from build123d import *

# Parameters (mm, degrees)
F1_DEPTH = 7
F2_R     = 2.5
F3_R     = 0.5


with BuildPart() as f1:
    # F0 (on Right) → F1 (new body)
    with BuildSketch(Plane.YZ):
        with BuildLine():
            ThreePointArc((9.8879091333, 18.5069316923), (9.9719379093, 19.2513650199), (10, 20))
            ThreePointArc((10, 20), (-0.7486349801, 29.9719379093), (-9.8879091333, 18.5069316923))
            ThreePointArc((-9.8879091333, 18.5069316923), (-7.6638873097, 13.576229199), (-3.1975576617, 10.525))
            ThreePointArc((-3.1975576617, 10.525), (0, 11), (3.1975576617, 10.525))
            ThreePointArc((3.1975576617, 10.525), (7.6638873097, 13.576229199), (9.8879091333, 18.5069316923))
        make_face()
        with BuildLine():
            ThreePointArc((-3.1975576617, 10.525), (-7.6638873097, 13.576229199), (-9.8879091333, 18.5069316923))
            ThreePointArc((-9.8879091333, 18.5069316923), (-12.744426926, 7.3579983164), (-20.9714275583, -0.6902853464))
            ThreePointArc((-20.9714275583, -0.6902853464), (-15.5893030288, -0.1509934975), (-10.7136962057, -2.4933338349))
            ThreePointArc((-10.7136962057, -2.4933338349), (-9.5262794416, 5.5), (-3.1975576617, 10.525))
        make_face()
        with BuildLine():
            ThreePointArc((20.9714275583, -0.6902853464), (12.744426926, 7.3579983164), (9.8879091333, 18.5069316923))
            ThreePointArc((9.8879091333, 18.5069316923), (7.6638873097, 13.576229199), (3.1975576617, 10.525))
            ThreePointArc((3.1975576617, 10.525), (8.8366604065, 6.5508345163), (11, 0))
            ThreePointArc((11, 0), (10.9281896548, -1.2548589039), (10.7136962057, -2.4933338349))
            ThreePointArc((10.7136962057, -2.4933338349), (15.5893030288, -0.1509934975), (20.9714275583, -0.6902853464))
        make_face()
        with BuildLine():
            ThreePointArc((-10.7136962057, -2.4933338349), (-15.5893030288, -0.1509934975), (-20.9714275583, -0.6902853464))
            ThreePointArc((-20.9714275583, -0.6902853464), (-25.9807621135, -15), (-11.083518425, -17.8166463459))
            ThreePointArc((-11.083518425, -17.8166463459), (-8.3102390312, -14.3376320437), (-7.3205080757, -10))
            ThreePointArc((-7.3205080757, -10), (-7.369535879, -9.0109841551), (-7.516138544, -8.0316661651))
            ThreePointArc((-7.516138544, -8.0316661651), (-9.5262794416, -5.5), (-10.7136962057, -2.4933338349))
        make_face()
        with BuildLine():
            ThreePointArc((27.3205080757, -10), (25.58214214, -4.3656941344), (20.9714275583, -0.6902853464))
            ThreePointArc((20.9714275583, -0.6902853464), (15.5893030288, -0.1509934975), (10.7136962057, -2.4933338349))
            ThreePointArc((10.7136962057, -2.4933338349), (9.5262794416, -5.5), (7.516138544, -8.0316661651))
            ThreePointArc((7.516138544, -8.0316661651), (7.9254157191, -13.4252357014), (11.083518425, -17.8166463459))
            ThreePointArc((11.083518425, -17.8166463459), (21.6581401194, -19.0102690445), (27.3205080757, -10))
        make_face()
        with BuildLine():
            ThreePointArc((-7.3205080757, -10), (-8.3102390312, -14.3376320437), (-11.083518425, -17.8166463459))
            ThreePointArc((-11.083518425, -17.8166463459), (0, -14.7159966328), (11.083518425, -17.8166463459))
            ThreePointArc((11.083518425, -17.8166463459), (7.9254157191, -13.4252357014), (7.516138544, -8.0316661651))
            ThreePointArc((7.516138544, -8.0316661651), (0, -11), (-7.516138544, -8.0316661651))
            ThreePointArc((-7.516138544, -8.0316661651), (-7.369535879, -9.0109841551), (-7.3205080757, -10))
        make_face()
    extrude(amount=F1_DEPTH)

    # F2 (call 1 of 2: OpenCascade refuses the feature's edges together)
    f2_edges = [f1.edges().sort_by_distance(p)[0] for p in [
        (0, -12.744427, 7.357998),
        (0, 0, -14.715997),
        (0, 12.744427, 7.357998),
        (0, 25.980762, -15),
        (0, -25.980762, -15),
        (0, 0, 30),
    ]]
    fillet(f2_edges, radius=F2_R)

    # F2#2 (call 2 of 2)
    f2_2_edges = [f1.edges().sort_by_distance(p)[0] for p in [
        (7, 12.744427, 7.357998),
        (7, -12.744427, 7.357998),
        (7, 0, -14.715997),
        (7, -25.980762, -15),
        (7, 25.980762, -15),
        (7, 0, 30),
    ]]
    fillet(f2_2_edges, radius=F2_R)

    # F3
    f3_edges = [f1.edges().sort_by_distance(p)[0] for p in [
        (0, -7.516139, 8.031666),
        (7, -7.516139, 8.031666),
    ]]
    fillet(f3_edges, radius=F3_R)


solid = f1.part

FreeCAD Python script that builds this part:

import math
import FreeCAD as App
import Part
import Sketcher

V = App.Vector


def edges_at(feature, points):
    """Names of the edges that pass closest to the given points."""
    edges = feature.Shape.Edges
    near = lambda p: min(range(len(edges)), key=lambda i: edges[i].distToShape(Part.Vertex(*p))[0])
    return sorted({f"Edge{near(p) + 1}" for p in points})

doc = App.newDocument("Part")
params = doc.addObject("Spreadsheet::Sheet", "Params")
for row, (alias, value) in enumerate([
    ("sketch1_radius", "10 mm"),
    ("sketch1_radius2", "11 mm"),
    ("pad1_length", "7 mm"),
    ("fillet_radius", "2.5 mm"),
    ("fillet2_radius", "2.5 mm"),
    ("fillet3_radius", "0.5 mm"),
], start=1):
    params.set(f"A{row}", alias)
    params.set(f"B{row}", "=" + value)
    params.setAlias(f"B{row}", alias)

body = doc.addObject("PartDesign::Body", "Body")

# Sketch on YZ plane
sketch1 = body.newObject("Sketcher::SketchObject", "Sketch")
sketch1.AttachmentSupport = (doc.getObject("YZ_Plane"), [""])
sketch1.MapMode = "FlatFace"
sketch1.addGeometry(Part.ArcOfCircle(Part.Circle(V(0, 20, 0), V(0, 0, 1), 10), math.radians(-8.586759), math.radians(0)), False)
sketch1.addGeometry(Part.ArcOfCircle(Part.Circle(V(0, 20, 0), V(0, 0, 1), 10), math.radians(0), math.radians(188.586759)), False)
sketch1.addGeometry(Part.ArcOfCircle(Part.Circle(V(-31.242542, 18.03789, 0), V(0, 0, 1), 21.359783), math.radians(-61.258266), math.radians(1.258266)), False)
sketch1.addGeometry(Part.ArcOfCircle(Part.Circle(V(-17.320508, -10, 0), V(0, 0, 1), 10), math.radians(111.413241), math.radians(308.586759)), False)
sketch1.addGeometry(Part.ArcOfCircle(Part.Circle(V(0, -36.07578, 0), V(0, 0, 1), 21.359783), math.radians(58.741734), math.radians(121.258266)), False)
sketch1.addGeometry(Part.ArcOfCircle(Part.Circle(V(17.320508, -10, 0), V(0, 0, 1), 10), math.radians(-128.586759), math.radians(68.586759)), False)
sketch1.addGeometry(Part.ArcOfCircle(Part.Circle(V(31.242542, 18.03789, 0), V(0, 0, 1), 21.359783), math.radians(178.741734), math.radians(241.258266)), False)
sketch1.addGeometry(Part.ArcOfCircle(Part.Circle(V(0, 0, 0), V(0, 0, 1), 11), math.radians(-166.899094), math.radians(-133.100906)), False)
sketch1.addGeometry(Part.ArcOfCircle(Part.Circle(V(0, 0, 0), V(0, 0, 1), 11), math.radians(106.899094), math.radians(193.100906)), False)
sketch1.addGeometry(Part.ArcOfCircle(Part.Circle(V(0, 0, 0), V(0, 0, 1), 11), math.radians(0), math.radians(106.899094)), False)
sketch1.addGeometry(Part.ArcOfCircle(Part.Circle(V(0, 0, 0), V(0, 0, 1), 11), math.radians(-13.100906), math.radians(0)), False)
sketch1.addGeometry(Part.ArcOfCircle(Part.Circle(V(0, 0, 0), V(0, 0, 1), 11), math.radians(-46.899094), math.radians(-13.100906)), False)
sketch1.addGeometry(Part.ArcOfCircle(Part.Circle(V(0, 0, 0), V(0, 0, 1), 11), math.radians(-133.100906), math.radians(-46.899094)), False)
sketch1.addConstraint(Sketcher.Constraint("Tangent", 0, 2, 1, 1))
sketch1.addConstraint(Sketcher.Constraint("Coincident", 1, 2, 2, 2))
sketch1.addConstraint(Sketcher.Constraint("Coincident", 2, 1, 3, 1))
sketch1.addConstraint(Sketcher.Constraint("Coincident", 3, 2, 4, 2))
sketch1.addConstraint(Sketcher.Constraint("Coincident", 4, 1, 5, 1))
sketch1.addConstraint(Sketcher.Constraint("Coincident", 5, 2, 6, 2))
sketch1.addConstraint(Sketcher.Constraint("Coincident", 6, 1, 0, 1))
sketch1.addConstraint(Sketcher.Constraint("Tangent", 7, 1, 8, 2))
sketch1.addConstraint(Sketcher.Constraint("Tangent", 8, 1, 9, 2))
sketch1.addConstraint(Sketcher.Constraint("Tangent", 9, 1, 10, 2))
sketch1.addConstraint(Sketcher.Constraint("Tangent", 10, 1, 11, 2))
sketch1.addConstraint(Sketcher.Constraint("Tangent", 11, 1, 12, 2))
sketch1.addConstraint(Sketcher.Constraint("Tangent", 12, 1, 7, 2))
sketch1.addConstraint(Sketcher.Constraint("Coincident", 7, 3, -1, 1))
sketch1.addConstraint(Sketcher.Constraint("Coincident", 9, 3, -1, 1))
sketch1.addConstraint(Sketcher.Constraint("Equal", 0, 1))
sketch1.addConstraint(Sketcher.Constraint("Equal", 1, 3))
sketch1.addConstraint(Sketcher.Constraint("Equal", 2, 4))
sketch1.addConstraint(Sketcher.Constraint("Equal", 3, 5))
sketch1.addConstraint(Sketcher.Constraint("Equal", 4, 6))
sketch1.addConstraint(Sketcher.Constraint("Equal", 9, 10))
sketch1.addConstraint(Sketcher.Constraint("Symmetric", 3, 3, 5, 3, -2))
sketch1.addConstraint(Sketcher.Constraint("Symmetric", 2, 3, 6, 3, -2))
sketch1.addConstraint(Sketcher.Constraint("PointOnObject", 0, 3, -2))
sketch1.addConstraint(Sketcher.Constraint("PointOnObject", 4, 3, -2))
sketch1.addConstraint(Sketcher.Constraint("PointOnObject", 9, 1, -1))
sketch1.addConstraint(Sketcher.Constraint("Horizontal", 1, 3, 0, 2))
sketch1.addConstraint(Sketcher.Constraint("Horizontal", 7, 1, 10, 1))
sketch1.addConstraint(Sketcher.Constraint("Horizontal", 11, 1, 12, 1))
sketch1.addConstraint(Sketcher.Constraint("Radius", 0, 10.0))
sketch1.addConstraint(Sketcher.Constraint("Radius", 7, 11.0))
sketch1.addConstraint(Sketcher.Constraint("DistanceY", -1, 1, 0, 3, 20.0))
sketch1.addConstraint(Sketcher.Constraint("DistanceY", 3, 3, -1, 1, 10.0))
sketch1.addConstraint(Sketcher.Constraint("DistanceY", -1, 1, 8, 1, 10.525))
sketch1.addConstraint(Sketcher.Constraint("Radius", 2, 21.359783))
sketch1.addConstraint(Sketcher.Constraint("DistanceX", 2, 3, -1, 1, 31.242542))
sketch1.addConstraint(Sketcher.Constraint("DistanceY", -1, 1, 2, 3, 18.03789))
sketch1.addConstraint(Sketcher.Constraint("DistanceX", 3, 3, -1, 1, 17.320508))
sketch1.addConstraint(Sketcher.Constraint("DistanceY", 4, 3, -1, 1, 36.07578))
sketch1.addConstraint(Sketcher.Constraint("DistanceX", -1, 1, 11, 1, 7.516139))
sketch1.addConstraint(Sketcher.Constraint("DistanceX", 3, 3, 7, 1, 6.606812))
sketch1.setExpression("Constraints[29]", "Params.sketch1_radius")
sketch1.setExpression("Constraints[30]", "Params.sketch1_radius2")
pad1 = body.newObject("PartDesign::Pad", "Pad")
pad1.Profile = sketch1
pad1.setExpression("Length", "Params.pad1_length")
doc.recompute()

fillet = body.newObject("PartDesign::Fillet", "Fillet")
fillet.Base = (pad1, edges_at(pad1, [
    (0, -12.744, 7.358),
    (0, 0, -14.716),
    (0, 12.744, 7.358),
    (0, 25.981, -15),
    (0, -25.981, -15),
    (0, -0.749, 29.972),
]))
fillet.setExpression("Radius", "Params.fillet_radius")
doc.recompute()

fillet2 = body.newObject("PartDesign::Fillet", "Fillet001")
fillet2.Base = (fillet, edges_at(fillet, [
    (7, 12.744, 7.358),
    (7, -12.744, 7.358),
    (7, 0, -14.716),
    (7, -25.981, -15),
    (7, 25.981, -15),
    (7, -0.749, 29.972),
]))
fillet2.setExpression("Radius", "Params.fillet2_radius")
doc.recompute()

fillet3 = body.newObject("PartDesign::Fillet", "Fillet002")
fillet3.Base = (fillet2, edges_at(fillet2, [(0, -9.526, 5.5), (7, -9.526, 5.5)]))
fillet3.setExpression("Radius", "Params.fillet3_radius")

doc.recompute()
